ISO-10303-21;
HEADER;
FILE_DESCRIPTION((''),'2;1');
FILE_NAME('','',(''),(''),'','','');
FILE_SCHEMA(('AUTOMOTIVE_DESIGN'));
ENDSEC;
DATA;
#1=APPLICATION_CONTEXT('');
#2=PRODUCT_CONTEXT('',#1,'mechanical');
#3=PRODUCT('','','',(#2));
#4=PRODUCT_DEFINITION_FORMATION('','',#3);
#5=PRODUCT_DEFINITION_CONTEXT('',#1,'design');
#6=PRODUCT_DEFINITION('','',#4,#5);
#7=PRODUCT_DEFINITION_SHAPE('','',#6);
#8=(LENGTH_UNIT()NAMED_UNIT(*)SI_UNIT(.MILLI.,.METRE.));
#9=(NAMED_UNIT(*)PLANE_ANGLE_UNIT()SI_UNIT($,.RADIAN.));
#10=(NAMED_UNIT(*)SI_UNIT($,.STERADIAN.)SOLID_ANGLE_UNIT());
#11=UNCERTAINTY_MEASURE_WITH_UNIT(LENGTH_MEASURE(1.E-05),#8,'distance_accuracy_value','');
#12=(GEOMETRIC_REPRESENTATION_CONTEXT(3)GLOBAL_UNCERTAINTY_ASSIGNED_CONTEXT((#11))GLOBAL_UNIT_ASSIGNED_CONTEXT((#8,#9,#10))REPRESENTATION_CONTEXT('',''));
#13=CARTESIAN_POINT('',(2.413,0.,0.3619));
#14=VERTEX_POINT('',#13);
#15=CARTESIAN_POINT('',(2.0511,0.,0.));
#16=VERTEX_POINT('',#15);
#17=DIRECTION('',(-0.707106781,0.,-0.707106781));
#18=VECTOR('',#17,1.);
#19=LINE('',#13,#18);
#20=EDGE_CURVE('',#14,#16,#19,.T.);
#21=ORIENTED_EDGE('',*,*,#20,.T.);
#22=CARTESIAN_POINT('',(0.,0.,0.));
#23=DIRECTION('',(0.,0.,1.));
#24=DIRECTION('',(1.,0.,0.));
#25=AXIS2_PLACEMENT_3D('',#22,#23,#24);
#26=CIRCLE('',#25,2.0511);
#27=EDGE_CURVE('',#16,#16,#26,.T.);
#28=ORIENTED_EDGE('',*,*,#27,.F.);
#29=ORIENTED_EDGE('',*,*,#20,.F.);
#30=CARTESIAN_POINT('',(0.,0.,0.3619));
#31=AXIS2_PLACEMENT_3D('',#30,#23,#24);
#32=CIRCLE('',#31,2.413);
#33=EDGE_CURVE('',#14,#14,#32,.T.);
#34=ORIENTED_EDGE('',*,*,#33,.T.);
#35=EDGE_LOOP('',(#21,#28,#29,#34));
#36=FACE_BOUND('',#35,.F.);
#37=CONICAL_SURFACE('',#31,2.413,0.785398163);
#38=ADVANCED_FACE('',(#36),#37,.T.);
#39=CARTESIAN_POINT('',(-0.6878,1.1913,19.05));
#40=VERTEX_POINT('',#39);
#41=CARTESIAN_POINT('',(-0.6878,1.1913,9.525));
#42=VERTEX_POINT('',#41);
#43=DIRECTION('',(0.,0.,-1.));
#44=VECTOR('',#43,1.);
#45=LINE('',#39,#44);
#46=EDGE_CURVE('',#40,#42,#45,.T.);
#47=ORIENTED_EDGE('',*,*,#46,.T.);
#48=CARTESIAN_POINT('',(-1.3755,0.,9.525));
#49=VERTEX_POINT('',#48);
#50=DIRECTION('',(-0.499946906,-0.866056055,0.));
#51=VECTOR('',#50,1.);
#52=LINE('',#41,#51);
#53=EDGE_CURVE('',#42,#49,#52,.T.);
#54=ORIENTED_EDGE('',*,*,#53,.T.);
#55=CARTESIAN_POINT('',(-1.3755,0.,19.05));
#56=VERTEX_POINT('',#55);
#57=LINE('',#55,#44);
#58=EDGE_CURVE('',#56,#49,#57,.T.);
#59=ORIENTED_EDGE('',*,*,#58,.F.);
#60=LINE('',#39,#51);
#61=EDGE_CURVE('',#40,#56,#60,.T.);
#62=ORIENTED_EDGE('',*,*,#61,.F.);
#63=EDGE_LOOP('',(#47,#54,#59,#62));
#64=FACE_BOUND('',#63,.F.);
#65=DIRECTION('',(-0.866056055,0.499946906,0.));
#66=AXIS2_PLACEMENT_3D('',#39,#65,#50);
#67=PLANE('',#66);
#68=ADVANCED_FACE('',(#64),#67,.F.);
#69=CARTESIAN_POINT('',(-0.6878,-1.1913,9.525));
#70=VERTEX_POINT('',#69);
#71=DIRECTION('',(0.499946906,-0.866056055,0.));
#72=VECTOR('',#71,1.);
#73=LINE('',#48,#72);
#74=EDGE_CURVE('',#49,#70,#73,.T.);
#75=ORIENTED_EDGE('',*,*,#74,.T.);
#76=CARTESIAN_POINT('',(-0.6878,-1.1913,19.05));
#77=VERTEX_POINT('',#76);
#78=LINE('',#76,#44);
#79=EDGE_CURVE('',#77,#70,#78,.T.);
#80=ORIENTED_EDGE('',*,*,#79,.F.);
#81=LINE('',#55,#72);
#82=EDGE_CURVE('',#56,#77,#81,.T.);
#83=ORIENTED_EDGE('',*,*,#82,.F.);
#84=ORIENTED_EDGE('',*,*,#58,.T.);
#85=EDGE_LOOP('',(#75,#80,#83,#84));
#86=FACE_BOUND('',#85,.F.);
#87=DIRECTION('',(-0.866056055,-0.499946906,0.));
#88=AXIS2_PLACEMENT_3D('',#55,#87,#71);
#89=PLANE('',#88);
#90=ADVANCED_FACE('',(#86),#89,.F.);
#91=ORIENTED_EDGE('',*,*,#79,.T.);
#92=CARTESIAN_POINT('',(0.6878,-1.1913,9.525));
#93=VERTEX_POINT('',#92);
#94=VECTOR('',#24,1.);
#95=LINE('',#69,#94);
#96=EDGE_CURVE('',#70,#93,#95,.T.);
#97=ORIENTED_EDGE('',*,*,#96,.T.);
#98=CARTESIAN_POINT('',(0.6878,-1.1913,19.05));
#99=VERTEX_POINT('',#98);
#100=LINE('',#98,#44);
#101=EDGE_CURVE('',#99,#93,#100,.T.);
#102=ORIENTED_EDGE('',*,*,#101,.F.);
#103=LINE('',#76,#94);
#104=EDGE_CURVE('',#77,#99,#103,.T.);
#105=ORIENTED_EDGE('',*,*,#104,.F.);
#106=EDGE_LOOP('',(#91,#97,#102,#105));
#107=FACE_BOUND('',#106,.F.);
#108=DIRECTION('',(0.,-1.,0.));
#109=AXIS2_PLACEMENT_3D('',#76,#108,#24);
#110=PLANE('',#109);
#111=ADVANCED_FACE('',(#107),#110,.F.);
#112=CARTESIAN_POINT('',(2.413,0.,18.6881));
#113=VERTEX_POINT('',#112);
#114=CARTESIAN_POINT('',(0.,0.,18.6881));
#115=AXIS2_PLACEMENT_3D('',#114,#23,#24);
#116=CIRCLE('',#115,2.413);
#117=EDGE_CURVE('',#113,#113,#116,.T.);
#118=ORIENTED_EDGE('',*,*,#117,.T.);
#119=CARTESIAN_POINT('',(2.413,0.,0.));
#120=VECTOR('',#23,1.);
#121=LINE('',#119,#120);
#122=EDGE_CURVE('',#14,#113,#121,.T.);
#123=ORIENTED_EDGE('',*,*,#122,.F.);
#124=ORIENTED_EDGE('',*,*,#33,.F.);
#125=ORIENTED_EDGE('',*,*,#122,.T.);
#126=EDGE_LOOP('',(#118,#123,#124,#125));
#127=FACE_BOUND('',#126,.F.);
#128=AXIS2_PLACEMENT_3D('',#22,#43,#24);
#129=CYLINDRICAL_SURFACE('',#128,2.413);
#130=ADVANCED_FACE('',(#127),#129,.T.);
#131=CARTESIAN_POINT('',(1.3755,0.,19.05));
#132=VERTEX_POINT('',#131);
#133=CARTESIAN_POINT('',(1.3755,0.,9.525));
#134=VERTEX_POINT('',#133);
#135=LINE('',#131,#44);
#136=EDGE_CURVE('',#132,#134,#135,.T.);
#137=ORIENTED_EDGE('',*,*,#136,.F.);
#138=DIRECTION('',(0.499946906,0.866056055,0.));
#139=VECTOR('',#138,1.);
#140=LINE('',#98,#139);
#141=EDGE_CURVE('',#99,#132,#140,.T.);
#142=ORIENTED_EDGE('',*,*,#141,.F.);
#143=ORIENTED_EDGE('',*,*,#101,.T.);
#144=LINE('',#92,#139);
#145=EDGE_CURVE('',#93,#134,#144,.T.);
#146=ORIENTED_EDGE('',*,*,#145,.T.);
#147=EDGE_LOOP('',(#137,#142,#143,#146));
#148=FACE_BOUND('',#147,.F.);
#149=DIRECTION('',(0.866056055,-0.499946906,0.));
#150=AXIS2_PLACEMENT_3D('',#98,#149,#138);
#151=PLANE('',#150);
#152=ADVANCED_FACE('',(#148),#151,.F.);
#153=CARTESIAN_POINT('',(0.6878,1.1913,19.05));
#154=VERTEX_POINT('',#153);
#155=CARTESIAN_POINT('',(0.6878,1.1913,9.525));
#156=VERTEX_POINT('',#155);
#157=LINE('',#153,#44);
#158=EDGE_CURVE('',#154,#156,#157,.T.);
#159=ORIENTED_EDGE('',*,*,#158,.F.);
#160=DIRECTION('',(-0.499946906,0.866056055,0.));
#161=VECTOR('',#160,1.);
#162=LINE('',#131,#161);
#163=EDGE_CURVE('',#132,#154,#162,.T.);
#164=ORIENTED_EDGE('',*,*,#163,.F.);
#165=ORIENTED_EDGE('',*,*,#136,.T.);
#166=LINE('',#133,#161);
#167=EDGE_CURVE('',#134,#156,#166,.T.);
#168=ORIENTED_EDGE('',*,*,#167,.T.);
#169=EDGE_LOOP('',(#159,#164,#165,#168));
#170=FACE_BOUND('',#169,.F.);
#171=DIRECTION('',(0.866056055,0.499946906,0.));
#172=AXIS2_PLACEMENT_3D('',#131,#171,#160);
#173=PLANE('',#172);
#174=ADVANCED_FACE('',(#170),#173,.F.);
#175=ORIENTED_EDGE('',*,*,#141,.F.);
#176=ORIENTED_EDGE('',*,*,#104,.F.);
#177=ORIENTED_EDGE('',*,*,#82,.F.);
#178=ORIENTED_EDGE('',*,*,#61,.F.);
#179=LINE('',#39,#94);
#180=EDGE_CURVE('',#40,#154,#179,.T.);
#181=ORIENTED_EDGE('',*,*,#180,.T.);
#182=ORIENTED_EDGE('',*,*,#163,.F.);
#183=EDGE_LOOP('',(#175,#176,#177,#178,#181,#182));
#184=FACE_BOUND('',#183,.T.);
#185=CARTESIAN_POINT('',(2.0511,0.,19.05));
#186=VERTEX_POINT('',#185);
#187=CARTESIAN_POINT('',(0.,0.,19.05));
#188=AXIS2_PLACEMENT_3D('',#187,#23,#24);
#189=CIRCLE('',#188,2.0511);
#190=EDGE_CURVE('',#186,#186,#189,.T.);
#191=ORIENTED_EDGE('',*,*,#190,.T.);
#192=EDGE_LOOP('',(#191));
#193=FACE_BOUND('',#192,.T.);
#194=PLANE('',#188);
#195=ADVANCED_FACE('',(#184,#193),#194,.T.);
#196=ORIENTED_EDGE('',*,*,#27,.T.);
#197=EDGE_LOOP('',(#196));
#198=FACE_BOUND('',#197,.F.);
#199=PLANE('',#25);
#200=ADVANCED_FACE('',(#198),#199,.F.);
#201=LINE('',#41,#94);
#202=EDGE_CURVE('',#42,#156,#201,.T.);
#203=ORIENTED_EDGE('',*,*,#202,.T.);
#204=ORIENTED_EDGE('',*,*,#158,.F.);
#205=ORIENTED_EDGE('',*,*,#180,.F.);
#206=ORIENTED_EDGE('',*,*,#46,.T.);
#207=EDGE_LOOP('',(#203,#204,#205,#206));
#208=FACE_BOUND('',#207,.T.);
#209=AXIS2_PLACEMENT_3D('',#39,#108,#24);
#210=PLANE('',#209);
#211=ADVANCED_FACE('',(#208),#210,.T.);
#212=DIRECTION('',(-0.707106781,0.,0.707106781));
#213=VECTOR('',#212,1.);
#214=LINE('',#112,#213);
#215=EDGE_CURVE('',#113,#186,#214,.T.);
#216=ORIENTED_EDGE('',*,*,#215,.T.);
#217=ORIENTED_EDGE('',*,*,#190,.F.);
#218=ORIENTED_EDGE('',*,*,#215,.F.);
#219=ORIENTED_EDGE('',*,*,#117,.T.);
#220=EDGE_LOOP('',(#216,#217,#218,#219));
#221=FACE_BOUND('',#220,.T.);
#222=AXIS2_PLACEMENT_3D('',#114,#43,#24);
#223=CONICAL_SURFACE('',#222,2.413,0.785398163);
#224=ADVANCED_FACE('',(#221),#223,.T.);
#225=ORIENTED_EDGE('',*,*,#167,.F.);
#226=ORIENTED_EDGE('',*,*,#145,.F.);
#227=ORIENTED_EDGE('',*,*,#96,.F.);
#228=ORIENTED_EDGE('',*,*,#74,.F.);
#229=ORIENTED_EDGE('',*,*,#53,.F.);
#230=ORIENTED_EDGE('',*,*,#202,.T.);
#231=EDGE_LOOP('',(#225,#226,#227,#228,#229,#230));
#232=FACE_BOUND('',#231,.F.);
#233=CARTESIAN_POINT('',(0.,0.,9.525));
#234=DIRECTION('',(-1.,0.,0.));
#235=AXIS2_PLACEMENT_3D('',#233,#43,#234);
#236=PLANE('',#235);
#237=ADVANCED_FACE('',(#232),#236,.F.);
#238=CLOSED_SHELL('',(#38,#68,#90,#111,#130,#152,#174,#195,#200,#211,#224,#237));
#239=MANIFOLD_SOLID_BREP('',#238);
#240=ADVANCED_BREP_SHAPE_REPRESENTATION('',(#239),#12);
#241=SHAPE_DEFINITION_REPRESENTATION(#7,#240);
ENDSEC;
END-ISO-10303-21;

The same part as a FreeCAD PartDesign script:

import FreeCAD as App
import Part
import Sketcher
from FreeCAD import Vector
Q = App.Units.Quantity


def edges_at(feature, points):
    """Names of the edges that pass closest to the given points."""
    edges = feature.Shape.Edges
    near = lambda p: min(range(len(edges)), key=lambda i: edges[i].distToShape(Part.Vertex(*p))[0])
    return sorted({f"Edge{near(p) + 1}" for p in points})


def add_polygon(sketch, points):
    """Adds a closed chain of lines whose ends are joined by coincident constraints."""
    first, n = sketch.GeometryCount, len(points)
    for a, b in zip(points, points[1:] + points[:1]):
        sketch.addGeometry(Part.LineSegment(App.Vector(*a, 0), App.Vector(*b, 0)), False)
    for i in range(n):
        sketch.addConstraint(Sketcher.Constraint("Coincident", first + i, 2, first + (i + 1) % n, 1))

doc = App.newDocument("Part")
body = doc.addObject("PartDesign::Body", "Body")

# Sketch on XY plane
sketch1 = doc.addObject("Sketcher::SketchObject", "Sketch")
body.addObject(sketch1)
sketch1.AttachmentSupport = (doc.XY_Plane, [""])
sketch1.MapMode = "FlatFace"
sketch1.addGeometry(Part.Circle(Vector(0, 0, 0), Vector(0, 0, 1), 2.4), False)
sketch1.addConstraint(Sketcher.Constraint("Coincident", 0, 3, -1, 1))
sketch1.addConstraint(Sketcher.Constraint("Diameter", 0, Q("0.19 in")))
pad1 = doc.addObject("PartDesign::Pad", "Pad")
body.addObject(pad1)
pad1.Profile = sketch1
pad1.Length = Q("0.75 in")
doc.recompute()

chamfer = doc.addObject("PartDesign::Chamfer", "Chamfer")
body.addObject(chamfer)
chamfer.Base = (pad1, edges_at(pad1, [(-2.413, 0, 0), (-2.413, 0, 19.05)]))
chamfer.Size = 0.3619

# Sketch on XY plane
sketch2 = doc.addObject("Sketcher::SketchObject", "Sketch001")
body.addObject(sketch2)
sketch2.AttachmentSupport = (doc.XY_Plane, [""])
sketch2.MapMode = "FlatFace"
sketch2.AttachmentOffset = App.Placement(Vector(0, 0, 0.75 * 25.4), App.Rotation())
add_polygon(sketch2, [(0.7, 1.2), (-0.7, 1.2), (-1.4, 0), (-0.7, -1.2), (0.7, -1.2), (1.4, 0)])  # lines 0-5
sketch2.addConstraint(Sketcher.Constraint("Horizontal", 0))
sketch2.addConstraint(Sketcher.Constraint("Horizontal", 3))
sketch2.addConstraint(Sketcher.Constraint("Symmetric", 0, 2, 3, 2, -1, 1))
sketch2.addConstraint(Sketcher.Constraint("Symmetric", 1, 2, 4, 2, -1, 1))
sketch2.addConstraint(Sketcher.Constraint("PointOnObject", 1, 2, -1))
sketch2.addConstraint(Sketcher.Constraint("Parallel", 2, 5))
sketch2.addConstraint(Sketcher.Constraint("Vertical", 0, 2, 2, 2))
sketch2.addConstraint(Sketcher.Constraint("DistanceX", 0, 2, 0, 1, Q("1.3756 mm")))
sketch2.addConstraint(Sketcher.Constraint("DistanceY", -1, 1, 0, 2, Q("0.0469 in")))
sketch2.addConstraint(Sketcher.Constraint("DistanceX", 1, 2, 4, 2, Q("0.1083 in")))
pocket1 = doc.addObject("PartDesign::Pocket", "Pocket")
body.addObject(pocket1)
pocket1.Profile = sketch2
pocket1.Length = Q("0.375 in")

doc.recompute()
